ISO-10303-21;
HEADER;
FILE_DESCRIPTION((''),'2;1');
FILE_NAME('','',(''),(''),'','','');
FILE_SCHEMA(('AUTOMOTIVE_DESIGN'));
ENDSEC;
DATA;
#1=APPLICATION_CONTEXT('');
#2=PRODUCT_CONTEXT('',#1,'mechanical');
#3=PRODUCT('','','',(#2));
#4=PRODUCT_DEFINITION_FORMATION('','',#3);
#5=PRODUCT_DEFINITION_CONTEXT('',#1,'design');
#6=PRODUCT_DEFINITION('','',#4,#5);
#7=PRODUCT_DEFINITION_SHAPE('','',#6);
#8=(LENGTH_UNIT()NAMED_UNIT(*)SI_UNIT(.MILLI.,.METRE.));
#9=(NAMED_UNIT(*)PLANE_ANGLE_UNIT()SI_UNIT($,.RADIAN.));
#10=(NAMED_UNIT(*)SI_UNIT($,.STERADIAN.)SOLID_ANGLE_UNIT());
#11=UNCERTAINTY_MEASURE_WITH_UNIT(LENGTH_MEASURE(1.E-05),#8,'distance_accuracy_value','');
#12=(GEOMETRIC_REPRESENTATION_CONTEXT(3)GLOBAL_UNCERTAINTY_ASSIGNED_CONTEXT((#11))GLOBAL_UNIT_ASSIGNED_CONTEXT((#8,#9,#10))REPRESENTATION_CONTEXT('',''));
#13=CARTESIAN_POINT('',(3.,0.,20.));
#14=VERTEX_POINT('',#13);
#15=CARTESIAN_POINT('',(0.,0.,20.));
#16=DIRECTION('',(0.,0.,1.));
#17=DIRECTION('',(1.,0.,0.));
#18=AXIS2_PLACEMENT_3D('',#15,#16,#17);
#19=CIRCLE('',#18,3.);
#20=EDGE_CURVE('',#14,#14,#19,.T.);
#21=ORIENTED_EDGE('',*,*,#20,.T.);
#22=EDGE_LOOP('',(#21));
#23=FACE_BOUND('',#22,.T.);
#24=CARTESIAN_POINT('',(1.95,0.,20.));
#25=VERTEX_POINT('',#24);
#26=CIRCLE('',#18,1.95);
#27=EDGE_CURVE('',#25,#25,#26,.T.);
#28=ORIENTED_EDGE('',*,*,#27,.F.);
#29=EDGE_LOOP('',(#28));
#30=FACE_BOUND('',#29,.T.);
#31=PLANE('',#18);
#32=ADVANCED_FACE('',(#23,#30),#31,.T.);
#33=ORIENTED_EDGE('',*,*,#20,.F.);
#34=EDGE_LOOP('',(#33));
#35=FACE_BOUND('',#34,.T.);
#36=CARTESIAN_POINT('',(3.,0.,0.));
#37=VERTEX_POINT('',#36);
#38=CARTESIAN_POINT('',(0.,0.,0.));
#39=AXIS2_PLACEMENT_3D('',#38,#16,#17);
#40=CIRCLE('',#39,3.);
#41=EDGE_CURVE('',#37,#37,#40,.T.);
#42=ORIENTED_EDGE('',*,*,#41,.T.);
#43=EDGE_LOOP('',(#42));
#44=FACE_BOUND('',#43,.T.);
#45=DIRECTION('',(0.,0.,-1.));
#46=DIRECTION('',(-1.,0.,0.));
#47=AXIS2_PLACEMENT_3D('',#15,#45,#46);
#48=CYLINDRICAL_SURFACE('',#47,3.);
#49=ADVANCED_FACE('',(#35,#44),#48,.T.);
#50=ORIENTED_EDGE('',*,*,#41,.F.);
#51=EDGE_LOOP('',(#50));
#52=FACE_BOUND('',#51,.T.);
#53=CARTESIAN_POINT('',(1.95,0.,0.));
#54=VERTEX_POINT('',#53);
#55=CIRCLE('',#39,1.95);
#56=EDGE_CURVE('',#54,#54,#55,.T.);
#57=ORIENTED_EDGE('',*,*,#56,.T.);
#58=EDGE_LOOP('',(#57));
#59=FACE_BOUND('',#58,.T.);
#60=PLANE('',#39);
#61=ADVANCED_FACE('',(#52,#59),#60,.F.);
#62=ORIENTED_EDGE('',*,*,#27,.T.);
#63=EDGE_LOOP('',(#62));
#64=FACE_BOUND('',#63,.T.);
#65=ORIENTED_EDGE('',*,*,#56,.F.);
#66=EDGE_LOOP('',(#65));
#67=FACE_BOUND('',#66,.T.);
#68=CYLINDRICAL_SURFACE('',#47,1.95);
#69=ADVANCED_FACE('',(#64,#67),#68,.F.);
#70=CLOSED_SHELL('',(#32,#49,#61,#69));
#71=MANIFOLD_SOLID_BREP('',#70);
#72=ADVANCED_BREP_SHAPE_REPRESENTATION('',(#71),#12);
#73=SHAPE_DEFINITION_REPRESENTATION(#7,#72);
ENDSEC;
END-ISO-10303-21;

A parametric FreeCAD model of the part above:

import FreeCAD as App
import Part
import Sketcher

doc = App.newDocument("Part")
body = doc.addObject("PartDesign::Body", "Body")

# Sketch on XY plane
sketch1 = body.newObject("Sketcher::SketchObject", "Sketch")
sketch1.AttachmentSupport = (doc.getObject("XY_Plane"), [""])
sketch1.MapMode = "FlatFace"
sketch1.addGeometry(Part.Circle(App.Vector(0, 0, 0), App.Vector(0, 0, 1), 3), False)
sketch1.addGeometry(Part.Circle(App.Vector(0, 0, 0), App.Vector(0, 0, 1), 1.9), False)
sketch1.addConstraint(Sketcher.Constraint("Coincident", 0, 3, -1, 1))
sketch1.addConstraint(Sketcher.Constraint("Coincident", 1, 3, -1, 1))
sketch1.addConstraint(Sketcher.Constraint("Diameter", 0, 6.0))
sketch1.addConstraint(Sketcher.Constraint("Diameter", 1, 3.9))
pad1 = body.newObject("PartDesign::Pad", "Pad")
pad1.Profile = sketch1
pad1.Length = 20

doc.recompute()
